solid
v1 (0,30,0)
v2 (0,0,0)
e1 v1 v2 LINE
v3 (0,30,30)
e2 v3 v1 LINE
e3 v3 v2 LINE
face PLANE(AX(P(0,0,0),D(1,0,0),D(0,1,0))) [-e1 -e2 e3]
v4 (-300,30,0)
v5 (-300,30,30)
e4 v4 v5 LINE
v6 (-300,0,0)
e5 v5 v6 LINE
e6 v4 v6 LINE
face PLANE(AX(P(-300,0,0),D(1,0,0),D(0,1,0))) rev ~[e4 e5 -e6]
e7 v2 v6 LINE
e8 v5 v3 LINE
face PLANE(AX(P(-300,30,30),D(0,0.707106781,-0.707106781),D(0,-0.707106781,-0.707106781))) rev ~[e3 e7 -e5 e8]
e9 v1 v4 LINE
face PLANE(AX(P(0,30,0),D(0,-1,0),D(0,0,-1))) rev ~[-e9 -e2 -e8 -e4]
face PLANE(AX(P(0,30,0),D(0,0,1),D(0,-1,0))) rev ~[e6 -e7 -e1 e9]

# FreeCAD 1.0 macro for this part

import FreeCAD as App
import Part
import Sketcher
from FreeCAD import Vector
Q = App.Units.Quantity


def add_polygon(sketch, points):
    """Adds a closed chain of lines whose ends are joined by coincident constraints."""
    first, n = sketch.GeometryCount, len(points)
    for a, b in zip(points, points[1:] + points[:1]):
        sketch.addGeometry(Part.LineSegment(App.Vector(*a, 0), App.Vector(*b, 0)), False)
    for i in range(n):
        sketch.addConstraint(Sketcher.Constraint("Coincident", first + i, 2, first + (i + 1) % n, 1))

doc = App.newDocument("Part")
body = doc.addObject("PartDesign::Body", "Body")

sketch1 = body.newObject("Sketcher::SketchObject", "Sketch")
sketch1.AttachmentSupport = (doc.getObject("YZ_Plane"), [""])
sketch1.MapMode = "FlatFace"
add_polygon(sketch1, [(30, 0), (0, 0), (0, -20), (30, -20)])
sketch1.addConstraint(Sketcher.Constraint("Horizontal", 0))
sketch1.addConstraint(Sketcher.Constraint("Vertical", 1))
sketch1.addConstraint(Sketcher.Constraint("Horizontal", 2))
sketch1.addConstraint(Sketcher.Constraint("Vertical", 3))
sketch1.addConstraint(Sketcher.Constraint("Coincident", 0, 2, -1, 1))
sketch1.addConstraint(Sketcher.Constraint("DistanceX", 0, 2, 0, 1, Q("30 mm")))
sketch1.addConstraint(Sketcher.Constraint("DistanceY", 1, 2, 1, 1, Q("20 mm")))
pad1 = body.newObject("PartDesign::Pad", "Pad")
pad1.Profile = sketch1
pad1.Length = 300
pad1.Reversed = True

sketch2 = body.newObject("Sketcher::SketchObject", "Sketch001")
sketch2.AttachmentSupport = (doc.getObject("YZ_Plane"), [""])
sketch2.MapMode = "FlatFace"
sketch2.AttachmentOffset = App.Placement(Vector(0, 0, -300), App.Rotation())
add_polygon(sketch2, [(30, 30), (0, 0), (30, 0)])
sketch2.addConstraint(Sketcher.Constraint("Horizontal", 1))
sketch2.addConstraint(Sketcher.Constraint("Vertical", 2))
sketch2.addConstraint(Sketcher.Constraint("Coincident", 0, 2, -1, 1))
sketch2.addConstraint(Sketcher.Constraint("Equal", 1, 2))
sketch2.addConstraint(Sketcher.Constraint("DistanceX", 1, 1, 1, 2, Q("30 mm")))
pad2 = body.newObject("PartDesign::Pad", "Pad001")
pad2.Profile = sketch2
pad2.Length = 300

sketch3 = body.newObject("Sketcher::SketchObject", "Sketch002")
sketch3.AttachmentSupport = (doc.getObject("YZ_Plane"), [""])
sketch3.MapMode = "FlatFace"
add_polygon(sketch3, [(30, 0), (0, 0), (0, -20), (30, -20)])
sketch3.addConstraint(Sketcher.Constraint("Horizontal", 0))
sketch3.addConstraint(Sketcher.Constraint("Vertical", 1))
sketch3.addConstraint(Sketcher.Constraint("Horizontal", 2))
sketch3.addConstraint(Sketcher.Constraint("Vertical", 3))
sketch3.addConstraint(Sketcher.Constraint("Coincident", 0, 2, -1, 1))
sketch3.addConstraint(Sketcher.Constraint("DistanceX", 0, 2, 0, 1, Q("30 mm")))
sketch3.addConstraint(Sketcher.Constraint("DistanceY", 1, 2, 1, 1, Q("20 mm")))
pocket1 = body.newObject("PartDesign::Pocket", "Pocket")
pocket1.Profile = sketch3
pocket1.Type = "ThroughAll"

doc.recompute()
